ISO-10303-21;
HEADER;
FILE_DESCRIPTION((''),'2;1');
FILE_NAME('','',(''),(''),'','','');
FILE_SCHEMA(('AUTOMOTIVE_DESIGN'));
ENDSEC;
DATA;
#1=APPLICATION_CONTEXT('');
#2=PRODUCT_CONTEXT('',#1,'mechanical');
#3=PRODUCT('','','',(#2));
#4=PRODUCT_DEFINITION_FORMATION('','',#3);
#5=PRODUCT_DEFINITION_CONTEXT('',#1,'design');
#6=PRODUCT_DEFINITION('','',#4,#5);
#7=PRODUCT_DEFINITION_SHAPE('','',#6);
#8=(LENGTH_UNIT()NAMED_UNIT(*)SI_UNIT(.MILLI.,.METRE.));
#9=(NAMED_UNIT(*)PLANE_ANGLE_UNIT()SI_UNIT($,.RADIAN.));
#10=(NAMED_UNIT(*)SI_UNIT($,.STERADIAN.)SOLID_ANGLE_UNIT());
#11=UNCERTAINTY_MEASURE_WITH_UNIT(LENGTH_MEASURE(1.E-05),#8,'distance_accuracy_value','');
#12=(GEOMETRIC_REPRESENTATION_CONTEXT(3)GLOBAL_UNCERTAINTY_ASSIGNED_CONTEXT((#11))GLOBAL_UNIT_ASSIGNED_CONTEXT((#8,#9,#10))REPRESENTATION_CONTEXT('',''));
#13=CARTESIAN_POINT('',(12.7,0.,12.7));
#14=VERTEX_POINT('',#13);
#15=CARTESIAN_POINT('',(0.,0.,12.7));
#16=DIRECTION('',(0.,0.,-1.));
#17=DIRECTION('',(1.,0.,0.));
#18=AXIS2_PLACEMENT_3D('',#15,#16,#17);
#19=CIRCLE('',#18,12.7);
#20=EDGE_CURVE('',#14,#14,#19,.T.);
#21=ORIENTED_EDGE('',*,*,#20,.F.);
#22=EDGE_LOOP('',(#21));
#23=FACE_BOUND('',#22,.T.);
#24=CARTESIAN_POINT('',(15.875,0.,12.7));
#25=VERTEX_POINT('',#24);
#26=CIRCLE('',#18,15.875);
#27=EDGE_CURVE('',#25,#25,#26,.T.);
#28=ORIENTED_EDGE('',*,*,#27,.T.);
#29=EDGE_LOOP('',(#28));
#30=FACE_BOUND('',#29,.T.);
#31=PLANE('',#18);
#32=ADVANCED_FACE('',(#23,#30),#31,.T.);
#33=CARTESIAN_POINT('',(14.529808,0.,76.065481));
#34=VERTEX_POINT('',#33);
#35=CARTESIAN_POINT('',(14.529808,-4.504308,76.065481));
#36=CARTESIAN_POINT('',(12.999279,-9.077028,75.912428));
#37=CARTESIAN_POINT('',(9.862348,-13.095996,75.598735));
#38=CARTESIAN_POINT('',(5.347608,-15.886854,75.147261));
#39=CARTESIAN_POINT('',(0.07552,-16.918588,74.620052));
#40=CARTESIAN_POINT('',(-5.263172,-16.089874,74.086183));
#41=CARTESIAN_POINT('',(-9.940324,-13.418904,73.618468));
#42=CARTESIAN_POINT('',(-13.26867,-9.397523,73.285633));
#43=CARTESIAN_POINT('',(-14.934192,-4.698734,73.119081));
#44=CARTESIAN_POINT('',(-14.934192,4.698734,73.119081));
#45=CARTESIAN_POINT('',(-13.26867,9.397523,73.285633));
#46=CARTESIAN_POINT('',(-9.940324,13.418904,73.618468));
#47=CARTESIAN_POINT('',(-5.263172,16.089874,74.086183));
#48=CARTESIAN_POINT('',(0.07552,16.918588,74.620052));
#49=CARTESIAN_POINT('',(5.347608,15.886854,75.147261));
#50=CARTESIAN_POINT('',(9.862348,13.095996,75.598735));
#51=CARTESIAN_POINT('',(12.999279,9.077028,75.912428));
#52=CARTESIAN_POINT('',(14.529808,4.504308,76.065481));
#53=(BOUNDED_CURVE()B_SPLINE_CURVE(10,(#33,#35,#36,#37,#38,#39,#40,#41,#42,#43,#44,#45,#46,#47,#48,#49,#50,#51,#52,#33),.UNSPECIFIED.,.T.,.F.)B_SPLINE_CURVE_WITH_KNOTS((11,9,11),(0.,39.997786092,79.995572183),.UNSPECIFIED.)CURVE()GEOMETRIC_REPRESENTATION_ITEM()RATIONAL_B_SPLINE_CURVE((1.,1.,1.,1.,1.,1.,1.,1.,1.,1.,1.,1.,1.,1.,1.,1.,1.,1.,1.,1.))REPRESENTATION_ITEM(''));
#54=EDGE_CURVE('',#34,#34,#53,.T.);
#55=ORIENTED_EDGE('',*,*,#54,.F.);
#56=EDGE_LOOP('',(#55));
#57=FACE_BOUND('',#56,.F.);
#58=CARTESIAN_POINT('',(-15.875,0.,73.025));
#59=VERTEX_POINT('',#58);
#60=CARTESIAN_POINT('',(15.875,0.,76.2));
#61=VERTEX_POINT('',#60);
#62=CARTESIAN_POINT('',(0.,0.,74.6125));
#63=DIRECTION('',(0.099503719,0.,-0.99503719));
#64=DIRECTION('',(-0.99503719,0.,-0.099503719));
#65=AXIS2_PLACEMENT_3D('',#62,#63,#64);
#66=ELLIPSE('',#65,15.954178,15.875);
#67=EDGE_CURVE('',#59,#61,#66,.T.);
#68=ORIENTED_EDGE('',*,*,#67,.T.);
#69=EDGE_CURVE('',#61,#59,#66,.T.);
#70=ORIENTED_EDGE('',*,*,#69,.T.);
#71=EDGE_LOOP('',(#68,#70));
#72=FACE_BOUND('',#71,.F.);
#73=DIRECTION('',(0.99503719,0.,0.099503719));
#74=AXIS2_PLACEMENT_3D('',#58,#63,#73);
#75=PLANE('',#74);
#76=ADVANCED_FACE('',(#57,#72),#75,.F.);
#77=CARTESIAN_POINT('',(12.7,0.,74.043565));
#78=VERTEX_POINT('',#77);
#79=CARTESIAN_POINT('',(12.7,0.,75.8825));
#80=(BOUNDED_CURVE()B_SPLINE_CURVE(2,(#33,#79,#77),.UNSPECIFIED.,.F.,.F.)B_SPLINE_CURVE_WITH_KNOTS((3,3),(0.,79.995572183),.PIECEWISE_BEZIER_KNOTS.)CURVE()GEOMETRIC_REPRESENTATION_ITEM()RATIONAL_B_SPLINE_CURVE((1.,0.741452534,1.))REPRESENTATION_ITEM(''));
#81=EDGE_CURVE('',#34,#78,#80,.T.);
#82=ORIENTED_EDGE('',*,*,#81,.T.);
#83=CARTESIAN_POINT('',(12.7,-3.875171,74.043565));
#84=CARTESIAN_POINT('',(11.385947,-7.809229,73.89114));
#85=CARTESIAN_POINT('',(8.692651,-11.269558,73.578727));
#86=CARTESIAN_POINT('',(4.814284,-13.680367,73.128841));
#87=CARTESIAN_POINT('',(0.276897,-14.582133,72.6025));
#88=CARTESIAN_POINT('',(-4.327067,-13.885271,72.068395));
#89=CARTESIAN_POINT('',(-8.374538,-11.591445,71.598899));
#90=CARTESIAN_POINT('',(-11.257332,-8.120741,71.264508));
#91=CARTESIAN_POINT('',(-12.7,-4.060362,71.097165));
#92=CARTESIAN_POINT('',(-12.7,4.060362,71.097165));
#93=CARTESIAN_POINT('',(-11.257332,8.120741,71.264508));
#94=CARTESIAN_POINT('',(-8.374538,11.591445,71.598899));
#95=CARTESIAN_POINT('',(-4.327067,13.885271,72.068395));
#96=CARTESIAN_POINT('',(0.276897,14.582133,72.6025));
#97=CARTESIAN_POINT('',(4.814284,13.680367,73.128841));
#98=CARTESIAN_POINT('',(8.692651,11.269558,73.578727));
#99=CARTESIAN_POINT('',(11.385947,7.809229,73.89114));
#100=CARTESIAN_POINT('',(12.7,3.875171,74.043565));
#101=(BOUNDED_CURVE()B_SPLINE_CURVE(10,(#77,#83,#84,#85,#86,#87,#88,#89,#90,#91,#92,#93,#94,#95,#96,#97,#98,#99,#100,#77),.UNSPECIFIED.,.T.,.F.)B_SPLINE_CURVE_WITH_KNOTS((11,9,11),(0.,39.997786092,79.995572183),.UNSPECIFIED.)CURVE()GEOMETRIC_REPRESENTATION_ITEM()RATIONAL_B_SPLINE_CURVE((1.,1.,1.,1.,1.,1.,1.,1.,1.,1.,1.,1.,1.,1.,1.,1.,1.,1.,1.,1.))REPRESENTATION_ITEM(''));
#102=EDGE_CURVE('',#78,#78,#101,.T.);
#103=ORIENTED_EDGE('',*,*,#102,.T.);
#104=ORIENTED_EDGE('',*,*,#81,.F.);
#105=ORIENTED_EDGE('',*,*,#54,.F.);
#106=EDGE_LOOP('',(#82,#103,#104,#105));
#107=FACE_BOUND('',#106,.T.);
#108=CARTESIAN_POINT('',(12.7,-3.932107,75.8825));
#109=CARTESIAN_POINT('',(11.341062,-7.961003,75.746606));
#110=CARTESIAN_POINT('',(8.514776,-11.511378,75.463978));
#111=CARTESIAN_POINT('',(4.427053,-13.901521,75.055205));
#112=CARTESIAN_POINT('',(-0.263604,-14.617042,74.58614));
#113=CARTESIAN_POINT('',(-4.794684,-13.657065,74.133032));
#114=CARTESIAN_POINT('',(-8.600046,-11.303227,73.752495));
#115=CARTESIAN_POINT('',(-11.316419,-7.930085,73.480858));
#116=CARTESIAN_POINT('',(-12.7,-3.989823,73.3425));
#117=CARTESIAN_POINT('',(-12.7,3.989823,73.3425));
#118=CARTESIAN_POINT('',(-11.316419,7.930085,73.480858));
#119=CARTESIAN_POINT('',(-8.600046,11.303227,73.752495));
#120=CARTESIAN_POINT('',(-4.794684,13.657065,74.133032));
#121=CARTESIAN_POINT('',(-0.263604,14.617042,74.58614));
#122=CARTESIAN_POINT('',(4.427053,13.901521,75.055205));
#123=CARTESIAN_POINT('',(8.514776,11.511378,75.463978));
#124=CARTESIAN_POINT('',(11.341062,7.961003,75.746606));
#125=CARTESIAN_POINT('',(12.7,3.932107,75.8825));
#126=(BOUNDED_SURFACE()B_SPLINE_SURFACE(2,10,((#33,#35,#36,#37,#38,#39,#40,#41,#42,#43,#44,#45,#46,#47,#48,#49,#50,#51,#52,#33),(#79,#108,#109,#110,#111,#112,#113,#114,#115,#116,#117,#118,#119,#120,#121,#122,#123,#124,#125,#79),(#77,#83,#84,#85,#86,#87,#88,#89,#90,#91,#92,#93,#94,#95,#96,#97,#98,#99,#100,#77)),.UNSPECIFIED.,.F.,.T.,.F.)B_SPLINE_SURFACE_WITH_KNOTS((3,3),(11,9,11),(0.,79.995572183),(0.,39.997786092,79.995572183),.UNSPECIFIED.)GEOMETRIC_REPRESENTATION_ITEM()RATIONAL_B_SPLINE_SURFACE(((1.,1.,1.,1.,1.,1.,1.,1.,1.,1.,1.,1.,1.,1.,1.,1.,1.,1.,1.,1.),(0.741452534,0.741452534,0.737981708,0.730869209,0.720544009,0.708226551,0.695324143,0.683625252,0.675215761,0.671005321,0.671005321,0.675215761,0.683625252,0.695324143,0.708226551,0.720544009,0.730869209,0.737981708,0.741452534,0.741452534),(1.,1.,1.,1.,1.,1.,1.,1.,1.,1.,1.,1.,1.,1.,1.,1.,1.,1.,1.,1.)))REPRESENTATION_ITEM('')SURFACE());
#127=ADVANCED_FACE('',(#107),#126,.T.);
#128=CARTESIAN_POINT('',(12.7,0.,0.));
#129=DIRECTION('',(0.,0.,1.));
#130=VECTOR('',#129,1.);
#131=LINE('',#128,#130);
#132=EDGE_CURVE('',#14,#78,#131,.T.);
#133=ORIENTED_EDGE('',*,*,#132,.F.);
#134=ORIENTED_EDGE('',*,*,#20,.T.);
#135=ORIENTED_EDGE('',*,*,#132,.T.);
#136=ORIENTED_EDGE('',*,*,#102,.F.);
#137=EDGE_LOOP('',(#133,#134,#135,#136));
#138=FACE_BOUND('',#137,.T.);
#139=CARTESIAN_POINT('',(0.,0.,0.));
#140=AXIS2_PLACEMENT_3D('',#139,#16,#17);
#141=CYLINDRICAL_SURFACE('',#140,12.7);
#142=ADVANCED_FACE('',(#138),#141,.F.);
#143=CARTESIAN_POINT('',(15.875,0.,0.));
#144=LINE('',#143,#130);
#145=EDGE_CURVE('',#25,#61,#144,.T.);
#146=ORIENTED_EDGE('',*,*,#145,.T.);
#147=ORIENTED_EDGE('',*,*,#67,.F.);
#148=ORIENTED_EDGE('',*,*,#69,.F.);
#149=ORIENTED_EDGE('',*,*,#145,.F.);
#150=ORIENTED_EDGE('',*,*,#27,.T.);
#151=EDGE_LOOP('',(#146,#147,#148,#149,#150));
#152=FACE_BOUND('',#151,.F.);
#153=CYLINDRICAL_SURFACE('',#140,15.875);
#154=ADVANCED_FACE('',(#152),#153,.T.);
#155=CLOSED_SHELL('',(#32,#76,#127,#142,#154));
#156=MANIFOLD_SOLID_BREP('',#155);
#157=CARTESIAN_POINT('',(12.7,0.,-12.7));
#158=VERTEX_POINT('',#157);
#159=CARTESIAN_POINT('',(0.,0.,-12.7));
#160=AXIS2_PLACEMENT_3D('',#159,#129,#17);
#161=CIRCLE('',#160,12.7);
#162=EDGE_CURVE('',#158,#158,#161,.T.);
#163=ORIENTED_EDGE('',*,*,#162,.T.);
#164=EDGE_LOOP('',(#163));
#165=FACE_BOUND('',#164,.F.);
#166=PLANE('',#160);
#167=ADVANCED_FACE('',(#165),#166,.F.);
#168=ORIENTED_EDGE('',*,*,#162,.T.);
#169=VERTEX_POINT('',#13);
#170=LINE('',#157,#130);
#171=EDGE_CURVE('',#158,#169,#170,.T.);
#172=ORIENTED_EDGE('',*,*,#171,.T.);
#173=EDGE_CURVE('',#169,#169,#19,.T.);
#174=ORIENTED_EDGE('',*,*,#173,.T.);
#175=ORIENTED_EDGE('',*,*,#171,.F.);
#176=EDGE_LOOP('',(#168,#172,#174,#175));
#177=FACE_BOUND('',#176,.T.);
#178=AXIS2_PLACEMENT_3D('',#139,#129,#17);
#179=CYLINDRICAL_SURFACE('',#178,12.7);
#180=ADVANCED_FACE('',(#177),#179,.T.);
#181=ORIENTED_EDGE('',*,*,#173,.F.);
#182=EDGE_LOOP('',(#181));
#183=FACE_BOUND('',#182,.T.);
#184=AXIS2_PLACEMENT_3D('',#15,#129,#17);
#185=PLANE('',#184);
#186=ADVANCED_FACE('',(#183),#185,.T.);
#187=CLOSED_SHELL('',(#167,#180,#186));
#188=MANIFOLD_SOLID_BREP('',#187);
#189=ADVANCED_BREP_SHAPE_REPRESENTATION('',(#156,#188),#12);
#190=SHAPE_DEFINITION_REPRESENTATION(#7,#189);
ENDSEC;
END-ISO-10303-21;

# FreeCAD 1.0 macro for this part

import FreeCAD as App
import Part
import Sketcher
from FreeCAD import Vector
Q = App.Units.Quantity


def edges_at(feature, points):
    """Names of the edges that pass closest to the given points."""
    edges = feature.Shape.Edges
    near = lambda p: min(range(len(edges)), key=lambda i: edges[i].distToShape(Part.Vertex(*p))[0])
    return sorted({f"Edge{near(p) + 1}" for p in points})


def add_polygon(sketch, points):
    """Adds a closed chain of lines whose ends are joined by coincident constraints."""
    first, n = sketch.GeometryCount, len(points)
    for a, b in zip(points, points[1:] + points[:1]):
        sketch.addGeometry(Part.LineSegment(App.Vector(*a, 0), App.Vector(*b, 0)), False)
    for i in range(n):
        sketch.addConstraint(Sketcher.Constraint("Coincident", first + i, 2, first + (i + 1) % n, 1))

doc = App.newDocument("Part")
params = doc.addObject("Spreadsheet::Sheet", "Params")
for row, (alias, value) in enumerate([
    ("sketch1_diameter", "1 in"),
    ("sketch1_diameter2", "1.25 in"),
    ("pad1_length", "3 in"),
    ("sketch2_diameter", "1 in"),
    ("pad2_length", "0.125 in"),
    ("sketch3_width", "1.25 in"),
    ("sketch3_height", "0.125 in"),
    ("pocket1_length", "1.5 in"),
    ("fillet_radius", "0.08 in"),
    ("sketch4_diameter", "1.25 in"),
    ("pocket2_length", "0.5 in"),
    ("sketch5_diameter", "1 in"),
    ("pad3_length", "1 in"),
], start=1):
    params.set(f"A{row}", alias)
    params.set(f"B{row}", "=" + value)
    params.setAlias(f"B{row}", alias)

body = doc.addObject("PartDesign::Body", "Body")
body.AllowCompound = True

sketch1 = body.newObject("Sketcher::SketchObject", "Sketch")
sketch1.AttachmentSupport = (doc.getObject("XY_Plane"), [""])
sketch1.MapMode = "FlatFace"
sketch1.addGeometry([
    Part.Circle(Vector(0, 0, 0), Vector(0, 0, 1), 16),
    Part.Circle(Vector(0, 0, 0), Vector(0, 0, 1), 13),
], False)
sketch1.addConstraint([
    Sketcher.Constraint("Coincident", 0, 3, -1, 1),
    Sketcher.Constraint("Coincident", 1, 3, -1, 1),
    Sketcher.Constraint("Diameter", 1, Q("1 in")),
    Sketcher.Constraint("Diameter", 0, Q("1.25 in")),
])
sketch1.setExpression("Constraints[2]", "Params.sketch1_diameter")
sketch1.setExpression("Constraints[3]", "Params.sketch1_diameter2")
pad1 = body.newObject("PartDesign::Pad", "Pad")
pad1.Profile = sketch1
pad1.setExpression("Length", "Params.pad1_length")

sketch2 = body.newObject("Sketcher::SketchObject", "Sketch001")
sketch2.AttachmentSupport = (doc.getObject("XY_Plane"), [""])
sketch2.MapMode = "FlatFace"
sketch2.addGeometry(Part.Circle(Vector(0, 0, 0), Vector(0, 0, 1), 13), False)
sketch2.addConstraint([
    Sketcher.Constraint("Coincident", 0, 3, -1, 1),
    Sketcher.Constraint("Diameter", 0, Q("1 in")),
])
sketch2.setExpression("Constraints[1]", "Params.sketch2_diameter")
pad2 = body.newObject("PartDesign::Pad", "Pad001")
pad2.Profile = sketch2
pad2.setExpression("Length", "Params.pad2_length")

sketch3 = body.newObject("Sketcher::SketchObject", "Sketch002")
sketch3.AttachmentSupport = (doc.getObject("XZ_Plane"), [""])
sketch3.MapMode = "FlatFace"
add_polygon(sketch3, [(-15.9, 73), (15.9, 76.2), (-15.9, 76.2)])
sketch3.addConstraint([
    Sketcher.Constraint("Horizontal", 1),
    Sketcher.Constraint("Vertical", 2),
    Sketcher.Constraint("DistanceY", -1, 1, 0, 2, Q("3 in")),
    Sketcher.Constraint("DistanceX", 1, 2, 1, 1, Q("1.25 in")),
    Sketcher.Constraint("DistanceY", 2, 2, 2, 1, Q("0.125 in")),
    Sketcher.Constraint("DistanceX", -1, 1, 0, 2, Q("0.625 in")),
])
sketch3.setExpression("Constraints[6]", "Params.sketch3_width")
sketch3.setExpression("Constraints[7]", "Params.sketch3_height")
pocket1 = body.newObject("PartDesign::Pocket", "Pocket")
pocket1.Profile = sketch3
pocket1.setExpression("Length", "Params.pocket1_length")
pocket1.Midplane = True
doc.recompute()

fillet = body.newObject("PartDesign::Fillet", "Fillet")
fillet.Base = (pocket1, edges_at(pocket1, [(-12.7, 0, 73.343)]))
fillet.setExpression("Radius", "Params.fillet_radius")

sketch4 = body.newObject("Sketcher::SketchObject", "Sketch003")
sketch4.AttachmentSupport = (doc.getObject("XY_Plane"), [""])
sketch4.MapMode = "FlatFace"
sketch4.addGeometry(Part.Circle(Vector(0, 0, 0), Vector(0, 0, 1), 16), False)
sketch4.addConstraint([
    Sketcher.Constraint("Coincident", 0, 3, -1, 1),
    Sketcher.Constraint("Diameter", 0, Q("1.25 in")),
])
sketch4.setExpression("Constraints[1]", "Params.sketch4_diameter")
pocket2 = body.newObject("PartDesign::Pocket", "Pocket001")
pocket2.Profile = sketch4
pocket2.setExpression("Length", "Params.pocket2_length")
pocket2.Reversed = True

sketch5 = body.newObject("Sketcher::SketchObject", "Sketch004")
sketch5.AttachmentSupport = (doc.getObject("XY_Plane"), [""])
sketch5.MapMode = "FlatFace"
sketch5.addGeometry(Part.Circle(Vector(0, 0, 0), Vector(0, 0, 1), 13), False)
sketch5.addConstraint([
    Sketcher.Constraint("Coincident", 0, 3, -1, 1),
    Sketcher.Constraint("Diameter", 0, Q("1 in")),
])
sketch5.setExpression("Constraints[1]", "Params.sketch5_diameter")
pad3 = body.newObject("PartDesign::Pad", "Pad002")
pad3.Profile = sketch5
pad3.setExpression("Length", "Params.pad3_length")
pad3.Midplane = True

doc.recompute()
